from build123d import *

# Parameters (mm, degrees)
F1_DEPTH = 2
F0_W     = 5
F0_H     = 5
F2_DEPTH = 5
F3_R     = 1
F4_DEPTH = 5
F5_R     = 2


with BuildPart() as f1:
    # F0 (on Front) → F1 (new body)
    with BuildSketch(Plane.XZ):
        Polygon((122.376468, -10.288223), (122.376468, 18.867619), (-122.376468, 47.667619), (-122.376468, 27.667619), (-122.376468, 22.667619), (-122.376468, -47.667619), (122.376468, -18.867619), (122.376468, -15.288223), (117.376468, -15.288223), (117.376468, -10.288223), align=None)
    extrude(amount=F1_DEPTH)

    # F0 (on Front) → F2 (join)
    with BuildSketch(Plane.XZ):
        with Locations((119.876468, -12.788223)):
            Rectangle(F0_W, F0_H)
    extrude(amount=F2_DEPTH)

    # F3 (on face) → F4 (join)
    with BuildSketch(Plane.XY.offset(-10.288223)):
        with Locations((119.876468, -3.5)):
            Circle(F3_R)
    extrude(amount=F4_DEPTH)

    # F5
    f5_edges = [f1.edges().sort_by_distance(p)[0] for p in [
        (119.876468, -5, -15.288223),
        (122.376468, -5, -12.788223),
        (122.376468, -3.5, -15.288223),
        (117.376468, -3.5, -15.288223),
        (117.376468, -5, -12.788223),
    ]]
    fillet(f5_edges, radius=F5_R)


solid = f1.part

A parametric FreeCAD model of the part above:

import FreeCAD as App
import Part
import Sketcher
from FreeCAD import Vector
Q = App.Units.Quantity


def edges_at(feature, points):
    """Names of the edges that pass closest to the given points."""
    edges = feature.Shape.Edges
    near = lambda p: min(range(len(edges)), key=lambda i: edges[i].distToShape(Part.Vertex(*p))[0])
    return sorted({f"Edge{near(p) + 1}" for p in points})

doc = App.newDocument("Part")
body = doc.addObject("PartDesign::Body", "Body")

# Sketch on XZ plane
sketch1 = doc.addObject("Sketcher::SketchObject", "Sketch")
body.addObject(sketch1)
sketch1.AttachmentSupport = (doc.XZ_Plane, [""])
sketch1.MapMode = "FlatFace"
sketch1.addGeometry([
    Part.LineSegment(Vector(122.376468, -10.288223, 0), Vector(122.376468, 18.867619, 0)),  # 0
    Part.LineSegment(Vector(122.376468, 18.867619, 0), Vector(-122.376468, 47.667619, 0)),  # 1
    Part.LineSegment(Vector(-122.376468, 47.667619, 0), Vector(-122.376468, -47.667619, 0)),  # 2
    Part.LineSegment(Vector(-122.376468, -47.667619, 0), Vector(122.376468, -18.867619, 0)),  # 3
    Part.LineSegment(Vector(122.376468, -18.867619, 0), Vector(122.376468, -15.288223, 0)),  # 4
    Part.LineSegment(Vector(122.376468, -15.288223, 0), Vector(117.376468, -15.288223, 0)),  # 5
    Part.LineSegment(Vector(117.376468, -15.288223, 0), Vector(117.376468, -10.288223, 0)),  # 6
    Part.LineSegment(Vector(117.376468, -10.288223, 0), Vector(122.376468, -10.288223, 0)),  # 7
], False)
sketch1.addConstraint([
    Sketcher.Constraint("Coincident", 0, 2, 1, 1),
    Sketcher.Constraint("Coincident", 1, 2, 2, 1),
    Sketcher.Constraint("Coincident", 2, 2, 3, 1),
    Sketcher.Constraint("Coincident", 3, 2, 4, 1),
    Sketcher.Constraint("Coincident", 4, 2, 5, 1),
    Sketcher.Constraint("Coincident", 5, 2, 6, 1),
    Sketcher.Constraint("Coincident", 6, 2, 7, 1),
    Sketcher.Constraint("Coincident", 7, 2, 0, 1),
    Sketcher.Constraint("Vertical", 0),
    Sketcher.Constraint("Vertical", 2),
    Sketcher.Constraint("Vertical", 4),
    Sketcher.Constraint("Horizontal", 5),
    Sketcher.Constraint("Vertical", 6),
    Sketcher.Constraint("Horizontal", 7),
    Sketcher.Constraint("Symmetric", 0, 2, 3, 2, -1),
    Sketcher.Constraint("Equal", 7, 6),
    Sketcher.Constraint("Equal", 1, 3),
    Sketcher.Constraint("DistanceX", 5, 2, 5, 1, Q("5 mm")),
    Sketcher.Constraint("DistanceY", 0, 2, 1, 2, Q("28.8 mm")),
    Sketcher.Constraint("DistanceY", 0, 1, 0, 2, Q("29.155842 mm")),
    Sketcher.Constraint("DistanceY", 2, 2, 2, 1, Q("95.335238 mm")),
    Sketcher.Constraint("DistanceX", -1, 1, 0, 2, Q("122.376468 mm")),
    Sketcher.Constraint("DistanceX", 1, 2, -1, 1, Q("122.376468 mm")),
])
pad1 = doc.addObject("PartDesign::Pad", "Pad")
body.addObject(pad1)
pad1.Profile = sketch1
pad1.Length = 2

# Sketch on XZ plane
sketch2 = doc.addObject("Sketcher::SketchObject", "Sketch001")
body.addObject(sketch2)
sketch2.AttachmentSupport = (doc.XZ_Plane, [""])
sketch2.MapMode = "FlatFace"
sketch2.addGeometry([
    Part.LineSegment(Vector(117.376468, -10.288223, 0), Vector(117.376468, -15.288223, 0)),
    Part.LineSegment(Vector(117.376468, -15.288223, 0), Vector(122.376468, -15.288223, 0)),
    Part.LineSegment(Vector(122.376468, -15.288223, 0), Vector(122.376468, -10.288223, 0)),
    Part.LineSegment(Vector(122.376468, -10.288223, 0), Vector(117.376468, -10.288223, 0)),
], False)
sketch2.addConstraint([
    Sketcher.Constraint("Coincident", 0, 2, 1, 1),
    Sketcher.Constraint("Coincident", 1, 2, 2, 1),
    Sketcher.Constraint("Coincident", 2, 2, 3, 1),
    Sketcher.Constraint("Coincident", 3, 2, 0, 1),
    Sketcher.Constraint("Vertical", 0),
    Sketcher.Constraint("Horizontal", 1),
    Sketcher.Constraint("Vertical", 2),
    Sketcher.Constraint("Horizontal", 3),
    Sketcher.Constraint("Equal", 3, 0),
    Sketcher.Constraint("DistanceX", 1, 1, 1, 2, Q("5 mm")),
    Sketcher.Constraint("DistanceX", -1, 1, 0, 2, Q("117.376468 mm")),
    Sketcher.Constraint("DistanceY", 0, 2, -1, 1, Q("15.288223 mm")),
])
pad2 = doc.addObject("PartDesign::Pad", "Pad001")
body.addObject(pad2)
pad2.Profile = sketch2
pad2.Length = 5

# Sketch on XY plane
sketch3 = doc.addObject("Sketcher::SketchObject", "Sketch002")
body.addObject(sketch3)
sketch3.AttachmentSupport = (doc.XY_Plane, [""])
sketch3.MapMode = "FlatFace"
sketch3.AttachmentOffset = App.Placement(Vector(0, 0, -10.288223), App.Rotation())
sketch3.addGeometry(Part.Circle(Vector(119.876468, -3.5, 0), Vector(0, 0, 1), 1), False)
sketch3.addConstraint([
    Sketcher.Constraint("Diameter", 0, Q("2 mm")),
    Sketcher.Constraint("DistanceY", 0, 3, -1, 1, Q("3.5 mm")),
    Sketcher.Constraint("DistanceX", -1, 1, 0, 3, Q("119.876468 mm")),
])
pad3 = doc.addObject("PartDesign::Pad", "Pad002")
body.addObject(pad3)
pad3.Profile = sketch3
pad3.Length = 5
doc.recompute()

fillet = doc.addObject("PartDesign::Fillet", "Fillet")
body.addObject(fillet)
fillet.Base = (pad3, edges_at(pad3, [
    (119.876, -5, -15.288),
    (122.376, -5, -12.788),
    (122.376, -3.5, -15.288),
    (117.376, -3.5, -15.288),
    (117.376, -5, -12.788),
]))
fillet.Radius = 2

doc.recompute()
